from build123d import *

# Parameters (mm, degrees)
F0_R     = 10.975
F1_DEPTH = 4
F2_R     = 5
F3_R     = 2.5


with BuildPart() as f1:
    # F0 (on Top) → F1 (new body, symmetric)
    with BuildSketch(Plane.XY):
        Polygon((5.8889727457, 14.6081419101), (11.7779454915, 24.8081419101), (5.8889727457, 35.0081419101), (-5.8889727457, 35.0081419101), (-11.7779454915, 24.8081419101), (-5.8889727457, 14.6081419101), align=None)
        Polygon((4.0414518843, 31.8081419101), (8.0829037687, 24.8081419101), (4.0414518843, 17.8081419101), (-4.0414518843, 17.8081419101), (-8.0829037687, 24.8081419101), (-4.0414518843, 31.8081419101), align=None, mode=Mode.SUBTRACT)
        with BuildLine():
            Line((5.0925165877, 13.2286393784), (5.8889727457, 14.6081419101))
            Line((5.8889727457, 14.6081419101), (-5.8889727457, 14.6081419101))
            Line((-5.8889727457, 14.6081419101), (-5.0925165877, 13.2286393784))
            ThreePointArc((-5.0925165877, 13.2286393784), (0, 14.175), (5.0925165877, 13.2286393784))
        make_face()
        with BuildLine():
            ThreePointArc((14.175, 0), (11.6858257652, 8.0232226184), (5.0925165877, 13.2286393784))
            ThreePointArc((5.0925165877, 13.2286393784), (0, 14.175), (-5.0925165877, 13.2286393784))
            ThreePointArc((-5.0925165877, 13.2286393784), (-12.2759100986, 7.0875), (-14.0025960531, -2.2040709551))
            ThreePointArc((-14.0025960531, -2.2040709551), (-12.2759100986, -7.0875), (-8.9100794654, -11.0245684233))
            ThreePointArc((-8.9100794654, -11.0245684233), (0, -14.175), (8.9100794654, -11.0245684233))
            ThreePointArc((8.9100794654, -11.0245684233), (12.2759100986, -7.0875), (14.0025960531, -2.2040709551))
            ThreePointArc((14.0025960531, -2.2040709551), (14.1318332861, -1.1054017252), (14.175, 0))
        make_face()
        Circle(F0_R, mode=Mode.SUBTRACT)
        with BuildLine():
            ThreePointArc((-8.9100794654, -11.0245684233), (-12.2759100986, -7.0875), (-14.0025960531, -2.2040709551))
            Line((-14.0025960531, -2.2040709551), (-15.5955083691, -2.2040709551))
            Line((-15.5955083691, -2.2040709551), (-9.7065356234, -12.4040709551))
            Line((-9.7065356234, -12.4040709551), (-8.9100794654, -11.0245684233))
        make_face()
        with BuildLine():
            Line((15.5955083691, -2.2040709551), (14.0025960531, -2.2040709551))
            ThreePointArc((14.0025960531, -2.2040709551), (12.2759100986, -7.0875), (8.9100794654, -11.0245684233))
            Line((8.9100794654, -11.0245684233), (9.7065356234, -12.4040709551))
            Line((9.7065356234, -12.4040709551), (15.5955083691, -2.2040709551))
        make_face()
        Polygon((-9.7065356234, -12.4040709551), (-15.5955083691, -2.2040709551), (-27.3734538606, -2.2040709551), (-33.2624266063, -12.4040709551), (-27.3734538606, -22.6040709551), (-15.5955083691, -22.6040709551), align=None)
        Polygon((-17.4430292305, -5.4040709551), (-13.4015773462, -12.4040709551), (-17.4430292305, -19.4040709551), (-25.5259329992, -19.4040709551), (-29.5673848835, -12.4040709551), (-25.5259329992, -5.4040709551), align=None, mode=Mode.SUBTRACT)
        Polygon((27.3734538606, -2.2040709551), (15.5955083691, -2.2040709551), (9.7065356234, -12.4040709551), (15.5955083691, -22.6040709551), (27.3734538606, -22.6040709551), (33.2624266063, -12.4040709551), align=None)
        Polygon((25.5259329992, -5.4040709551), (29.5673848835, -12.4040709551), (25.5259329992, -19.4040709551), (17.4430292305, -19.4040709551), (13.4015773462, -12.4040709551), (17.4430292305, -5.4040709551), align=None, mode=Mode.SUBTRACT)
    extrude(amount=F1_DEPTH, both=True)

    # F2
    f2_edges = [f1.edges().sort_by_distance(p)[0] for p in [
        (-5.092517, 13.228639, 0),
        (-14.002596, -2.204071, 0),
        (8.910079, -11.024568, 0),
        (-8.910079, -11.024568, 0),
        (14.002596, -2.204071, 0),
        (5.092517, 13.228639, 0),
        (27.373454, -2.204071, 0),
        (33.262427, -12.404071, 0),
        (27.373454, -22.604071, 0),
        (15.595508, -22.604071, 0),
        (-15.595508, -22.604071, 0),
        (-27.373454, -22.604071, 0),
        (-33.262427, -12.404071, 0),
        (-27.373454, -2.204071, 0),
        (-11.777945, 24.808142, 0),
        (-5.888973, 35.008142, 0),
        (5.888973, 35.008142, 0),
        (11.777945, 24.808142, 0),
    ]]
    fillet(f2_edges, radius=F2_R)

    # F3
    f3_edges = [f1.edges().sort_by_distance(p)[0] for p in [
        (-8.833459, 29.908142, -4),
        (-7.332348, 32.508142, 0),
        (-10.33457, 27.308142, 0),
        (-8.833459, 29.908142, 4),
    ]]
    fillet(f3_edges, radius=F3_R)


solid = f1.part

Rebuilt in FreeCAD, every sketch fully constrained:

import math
import FreeCAD as App
import Part
import Sketcher

V = App.Vector
Q = App.Units.Quantity


def edges_at(feature, points):
    """Names of the edges that pass closest to the given points."""
    edges = feature.Shape.Edges
    near = lambda p: min(range(len(edges)), key=lambda i: edges[i].distToShape(Part.Vertex(*p))[0])
    return sorted({f"Edge{near(p) + 1}" for p in points})

doc = App.newDocument("Part")
body = doc.addObject("PartDesign::Body", "Body")

sketch1 = body.newObject("Sketcher::SketchObject", "Sketch")
sketch1.AttachmentSupport = (doc.getObject("XY_Plane"), [""])
sketch1.MapMode = "FlatFace"
sketch1.addGeometry([
    Part.LineSegment(V(5.9, 14.6, 0), V(11.8, 24.8, 0)),
    Part.LineSegment(V(11.8, 24.8, 0), V(5.9, 35, 0)),
    Part.LineSegment(V(5.9, 35, 0), V(-5.9, 35, 0)),
    Part.LineSegment(V(-5.9, 35, 0), V(-11.8, 24.8, 0)),
    Part.LineSegment(V(-11.8, 24.8, 0), V(-5.9, 14.6, 0)),
    Part.LineSegment(V(-5.9, 14.6, 0), V(-5.1, 13.2, 0)),
    Part.ArcOfCircle(Part.Circle(V(0, 0, 0), V(0, 0, 1), 14.2), math.radians(111), math.radians(189)),
    Part.LineSegment(V(-14, -2.2, 0), V(-27.4, -2.2, 0)),
    Part.LineSegment(V(-27.4, -2.2, 0), V(-33.3, -12.4, 0)),
    Part.LineSegment(V(-33.3, -12.4, 0), V(-27.4, -22.6, 0)),
    Part.LineSegment(V(-27.4, -22.6, 0), V(-15.6, -22.6, 0)),
    Part.LineSegment(V(-15.6, -22.6, 0), V(-9.7, -12.4, 0)),
    Part.LineSegment(V(-9.7, -12.4, 0), V(-8.9, -11, 0)),
    Part.ArcOfCircle(Part.Circle(V(0, 0, 0), V(0, 0, 1), 14.2), math.radians(-129), math.radians(-51)),
    Part.LineSegment(V(8.9, -11, 0), V(9.7, -12.4, 0)),
    Part.LineSegment(V(9.7, -12.4, 0), V(15.6, -22.6, 0)),
    Part.LineSegment(V(15.6, -22.6, 0), V(27.4, -22.6, 0)),
    Part.LineSegment(V(27.4, -22.6, 0), V(33.3, -12.4, 0)),
    Part.LineSegment(V(33.3, -12.4, 0), V(27.4, -2.2, 0)),
    Part.LineSegment(V(27.4, -2.2, 0), V(14, -2.2, 0)),
    Part.ArcOfCircle(Part.Circle(V(0, 0, 0), V(0, 0, 1), 14.2), math.radians(-8.95), math.radians(0)),
    Part.ArcOfCircle(Part.Circle(V(0, 0, 0), V(0, 0, 1), 14.2), math.radians(0), math.radians(69)),
    Part.LineSegment(V(5.1, 13.2, 0), V(5.9, 14.6, 0)),
    Part.LineSegment(V(-25.5, -5.4, 0), V(-17.4, -5.4, 0)),
    Part.LineSegment(V(-17.4, -5.4, 0), V(-13.4, -12.4, 0)),
    Part.LineSegment(V(-13.4, -12.4, 0), V(-17.4, -19.4, 0)),
    Part.LineSegment(V(-17.4, -19.4, 0), V(-25.5, -19.4, 0)),
    Part.LineSegment(V(-25.5, -19.4, 0), V(-29.6, -12.4, 0)),
    Part.LineSegment(V(-29.6, -12.4, 0), V(-25.5, -5.4, 0)),
    Part.LineSegment(V(17.4, -5.4, 0), V(25.5, -5.4, 0)),
    Part.LineSegment(V(25.5, -5.4, 0), V(29.6, -12.4, 0)),
    Part.LineSegment(V(29.6, -12.4, 0), V(25.5, -19.4, 0)),
    Part.LineSegment(V(25.5, -19.4, 0), V(17.4, -19.4, 0)),
    Part.LineSegment(V(17.4, -19.4, 0), V(13.4, -12.4, 0)),
    Part.LineSegment(V(13.4, -12.4, 0), V(17.4, -5.4, 0)),
    Part.Circle(V(0, 0, 0), V(0, 0, 1), 11),
    Part.LineSegment(V(-4, 31.8, 0), V(4, 31.8, 0)),
    Part.LineSegment(V(4, 31.8, 0), V(8.1, 24.8, 0)),
    Part.LineSegment(V(8.1, 24.8, 0), V(4, 17.8, 0)),
    Part.LineSegment(V(4, 17.8, 0), V(-4, 17.8, 0)),
    Part.LineSegment(V(-4, 17.8, 0), V(-8.1, 24.8, 0)),
    Part.LineSegment(V(-8.1, 24.8, 0), V(-4, 31.8, 0)),
], False)
sketch1.addConstraint([
    Sketcher.Constraint("Coincident", 0, 2, 1, 1),
    Sketcher.Constraint("Coincident", 1, 2, 2, 1),
    Sketcher.Constraint("Coincident", 2, 2, 3, 1),
    Sketcher.Constraint("Coincident", 3, 2, 4, 1),
    Sketcher.Constraint("Coincident", 4, 2, 5, 1),
    Sketcher.Constraint("Coincident", 5, 2, 6, 1),
    Sketcher.Constraint("Coincident", 6, 2, 7, 1),
    Sketcher.Constraint("Coincident", 7, 2, 8, 1),
    Sketcher.Constraint("Coincident", 8, 2, 9, 1),
    Sketcher.Constraint("Coincident", 9, 2, 10, 1),
    Sketcher.Constraint("Coincident", 10, 2, 11, 1),
    Sketcher.Constraint("Coincident", 11, 2, 12, 1),
    Sketcher.Constraint("Coincident", 12, 2, 13, 1),
    Sketcher.Constraint("Coincident", 13, 2, 14, 1),
    Sketcher.Constraint("Coincident", 14, 2, 15, 1),
    Sketcher.Constraint("Coincident", 15, 2, 16, 1),
    Sketcher.Constraint("Coincident", 16, 2, 17, 1),
    Sketcher.Constraint("Coincident", 17, 2, 18, 1),
    Sketcher.Constraint("Coincident", 18, 2, 19, 1),
    Sketcher.Constraint("Coincident", 19, 2, 20, 1),
    Sketcher.Constraint("Tangent", 20, 2, 21, 1),
    Sketcher.Constraint("Coincident", 21, 2, 22, 1),
    Sketcher.Constraint("Coincident", 22, 2, 0, 1),
    Sketcher.Constraint("Coincident", 23, 2, 24, 1),
    Sketcher.Constraint("Coincident", 24, 2, 25, 1),
    Sketcher.Constraint("Coincident", 25, 2, 26, 1),
    Sketcher.Constraint("Coincident", 26, 2, 27, 1),
    Sketcher.Constraint("Coincident", 27, 2, 28, 1),
    Sketcher.Constraint("Coincident", 28, 2, 23, 1),
    Sketcher.Constraint("Coincident", 29, 2, 30, 1),
    Sketcher.Constraint("Coincident", 30, 2, 31, 1),
    Sketcher.Constraint("Coincident", 31, 2, 32, 1),
    Sketcher.Constraint("Coincident", 32, 2, 33, 1),
    Sketcher.Constraint("Coincident", 33, 2, 34, 1),
    Sketcher.Constraint("Coincident", 34, 2, 29, 1),
    Sketcher.Constraint("Coincident", 36, 2, 37, 1),
    Sketcher.Constraint("Coincident", 37, 2, 38, 1),
    Sketcher.Constraint("Coincident", 38, 2, 39, 1),
    Sketcher.Constraint("Coincident", 39, 2, 40, 1),
    Sketcher.Constraint("Coincident", 40, 2, 41, 1),
    Sketcher.Constraint("Coincident", 41, 2, 36, 1),
    Sketcher.Constraint("Horizontal", 2),
    Sketcher.Constraint("Horizontal", 7),
    Sketcher.Constraint("Horizontal", 10),
    Sketcher.Constraint("Horizontal", 16),
    Sketcher.Constraint("Horizontal", 19),
    Sketcher.Constraint("Horizontal", 23),
    Sketcher.Constraint("Horizontal", 26),
    Sketcher.Constraint("Horizontal", 29),
    Sketcher.Constraint("Horizontal", 32),
    Sketcher.Constraint("Horizontal", 36),
    Sketcher.Constraint("Horizontal", 39),
    Sketcher.Constraint("Coincident", 6, 3, -1, 1),
    Sketcher.Constraint("Coincident", 13, 3, -1, 1),
    Sketcher.Constraint("Coincident", 20, 3, -1, 1),
    Sketcher.Constraint("Coincident", 35, 3, -1, 1),
    Sketcher.Constraint("Equal", 6, 13),
    Sketcher.Constraint("Equal", 13, 20),
    Sketcher.Constraint("Equal", 20, 21),
    Sketcher.Constraint("Symmetric", 0, 2, 3, 2, -2),
    Sketcher.Constraint("Symmetric", 11, 2, 14, 2, -2),
    Sketcher.Constraint("Symmetric", 10, 2, 15, 2, -2),
    Sketcher.Constraint("Symmetric", 8, 2, 17, 2, -2),
    Sketcher.Constraint("Symmetric", 7, 2, 18, 2, -2),
    Sketcher.Constraint("Symmetric", 4, 2, 22, 2, -2),
    Sketcher.Constraint("Symmetric", 28, 2, 29, 2, -2),
    Sketcher.Constraint("Symmetric", 27, 2, 30, 2, -2),
    Sketcher.Constraint("Symmetric", 26, 2, 31, 2, -2),
    Sketcher.Constraint("Symmetric", 24, 2, 33, 2, -2),
    Sketcher.Constraint("Symmetric", 37, 2, 40, 2, -2),
    Sketcher.Constraint("PointOnObject", 20, 2, -1),
    Sketcher.Constraint("Parallel", 0, 3),
    Sketcher.Constraint("Parallel", 1, 4),
    Sketcher.Constraint("Parallel", 4, 5),
    Sketcher.Constraint("Parallel", 3, 8),
    Sketcher.Constraint("Parallel", 5, 9),
    Sketcher.Constraint("Parallel", 8, 11),
    Sketcher.Constraint("Parallel", 11, 12),
    Sketcher.Constraint("Parallel", 9, 14),
    Sketcher.Constraint("Parallel", 12, 17),
    Sketcher.Constraint("Parallel", 17, 22),
    Sketcher.Constraint("Parallel", 18, 24),
    Sketcher.Constraint("Parallel", 22, 25),
    Sketcher.Constraint("Parallel", 24, 27),
    Sketcher.Constraint("Parallel", 25, 28),
    Sketcher.Constraint("Parallel", 30, 33),
    Sketcher.Constraint("Parallel", 31, 34),
    Sketcher.Constraint("Parallel", 33, 37),
    Sketcher.Constraint("Parallel", 34, 38),
    Sketcher.Constraint("Parallel", 37, 40),
    Sketcher.Constraint("Parallel", 38, 41),
    Sketcher.Constraint("Horizontal", 8, 2, 11, 2),
    Sketcher.Constraint("Horizontal", 17, 2, 24, 2),
    Sketcher.Constraint("Horizontal", 24, 2, 27, 2),
    Sketcher.Constraint("Horizontal", 3, 2, 37, 2),
    Sketcher.Constraint("Vertical", 2, 2, 4, 2),
    Sketcher.Constraint("Vertical", 7, 2, 9, 2),
    Sketcher.Constraint("Vertical", 23, 2, 25, 2),
    Sketcher.Constraint("Vertical", 36, 2, 38, 2),
    Sketcher.Constraint("Equal", 2, 10),
    Sketcher.Constraint("Equal", 32, 36),
    Sketcher.Constraint("Equal", 4, 8),
    Sketcher.Constraint("Equal", 5, 12),
    Sketcher.Constraint("Equal", 34, 37),
    Sketcher.Constraint("Diameter", 35, 21.95),
    Sketcher.Constraint("Angle", 0, Q("60 deg")),
    Sketcher.Constraint("Radius", 6, 14.175),
    Sketcher.Constraint("DistanceY", 11, 2, 23, 2, 7.0),
    Sketcher.Constraint("DistanceY", 0, 2, 1, 2, 10.2),
    Sketcher.Constraint("DistanceX", 2, 2, 2, 1, 11.777945),
    Sketcher.Constraint("DistanceX", 7, 2, 7, 1, 13.370858),
    Sketcher.Constraint("DistanceX", 23, 1, 23, 2, 8.082904),
    Sketcher.Constraint("DistanceY", -1, 1, 0, 2, 24.808142),
    Sketcher.Constraint("DistanceX", 23, 2, -1, 1, 17.443029),
])
pad1 = body.newObject("PartDesign::Pad", "Pad")
pad1.Profile = sketch1
pad1.Length = 8
pad1.Midplane = True
doc.recompute()

fillet = body.newObject("PartDesign::Fillet", "Fillet")
fillet.Base = (pad1, edges_at(pad1, [
    (-5.093, 13.229, 0),
    (-14.003, -2.204, 0),
    (8.91, -11.025, 0),
    (-8.91, -11.025, 0),
    (14.003, -2.204, 0),
    (5.093, 13.229, 0),
    (27.373, -2.204, 0),
    (33.262, -12.404, 0),
    (27.373, -22.604, 0),
    (15.596, -22.604, 0),
    (-15.596, -22.604, 0),
    (-27.373, -22.604, 0),
    (-33.262, -12.404, 0),
    (-27.373, -2.204, 0),
    (-11.778, 24.808, 0),
    (-5.889, 35.008, 0),
    (5.889, 35.008, 0),
    (11.778, 24.808, 0),
]))
fillet.Radius = 5
doc.recompute()

fillet2 = body.newObject("PartDesign::Fillet", "Fillet001")
fillet2.Base = (fillet, edges_at(fillet, [
    (-8.833, 29.908, -4),
    (-7.332, 32.508, 0),
    (-10.335, 27.308, 0),
    (-8.833, 29.908, 4),
]))
fillet2.Radius = 2.5

doc.recompute()
